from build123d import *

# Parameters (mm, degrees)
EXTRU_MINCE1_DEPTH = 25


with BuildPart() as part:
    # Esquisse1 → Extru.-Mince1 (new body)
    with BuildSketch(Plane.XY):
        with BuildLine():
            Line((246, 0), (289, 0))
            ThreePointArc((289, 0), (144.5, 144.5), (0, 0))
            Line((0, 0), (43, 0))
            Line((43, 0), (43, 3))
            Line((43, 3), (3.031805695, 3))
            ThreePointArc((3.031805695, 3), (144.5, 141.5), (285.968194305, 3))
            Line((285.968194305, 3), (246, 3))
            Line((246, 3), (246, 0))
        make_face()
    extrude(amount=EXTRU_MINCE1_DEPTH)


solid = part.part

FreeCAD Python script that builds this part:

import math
import FreeCAD as App
import Part
import Sketcher
Q = App.Units.Quantity

doc = App.newDocument("Part")
body = doc.addObject("PartDesign::Body", "Body")

sketch1 = doc.addObject("Sketcher::SketchObject", "Sketch")
body.addObject(sketch1)
sketch1.AttachmentSupport = (doc.XY_Plane, [""])
sketch1.MapMode = "FlatFace"
sketch1.addGeometry([
    Part.LineSegment(App.Vector(246, 0, 0), App.Vector(289, 0, 0)),
    Part.ArcOfCircle(Part.Circle(App.Vector(144.5, 0, 0), App.Vector(0, 0, 1), 144.5), math.radians(0), math.radians(180)),
    Part.LineSegment(App.Vector(0, 0, 0), App.Vector(43, 0, 0)),
    Part.LineSegment(App.Vector(43, 0, 0), App.Vector(43, 3, 0)),
    Part.LineSegment(App.Vector(43, 3, 0), App.Vector(3.031806, 3, 0)),
    Part.ArcOfCircle(Part.Circle(App.Vector(144.5, 0, 0), App.Vector(0, 0, 1), 141.5), math.radians(1.214843), math.radians(178.785157)),
    Part.LineSegment(App.Vector(285.968194, 3, 0), App.Vector(246, 3, 0)),
    Part.LineSegment(App.Vector(246, 3, 0), App.Vector(246, 0, 0)),
], False)
sketch1.addConstraint([
    Sketcher.Constraint("Coincident", 0, 2, 1, 1),
    Sketcher.Constraint("Coincident", 1, 2, 2, 1),
    Sketcher.Constraint("Coincident", 2, 2, 3, 1),
    Sketcher.Constraint("Coincident", 3, 2, 4, 1),
    Sketcher.Constraint("Coincident", 4, 2, 5, 2),
    Sketcher.Constraint("Coincident", 5, 1, 6, 1),
    Sketcher.Constraint("Coincident", 6, 2, 7, 1),
    Sketcher.Constraint("Coincident", 7, 2, 0, 1),
    Sketcher.Constraint("Horizontal", 0),
    Sketcher.Constraint("Horizontal", 2),
    Sketcher.Constraint("Vertical", 3),
    Sketcher.Constraint("Horizontal", 4),
    Sketcher.Constraint("Horizontal", 6),
    Sketcher.Constraint("Vertical", 7),
    Sketcher.Constraint("Coincident", 1, 2, -1, 1),
    Sketcher.Constraint("Coincident", 5, 3, 1, 3),
    Sketcher.Constraint("PointOnObject", 1, 3, -1),
    Sketcher.Constraint("PointOnObject", 0, 2, -1),
    Sketcher.Constraint("Horizontal", 4, 2, 5, 1),
    Sketcher.Constraint("Equal", 0, 2),
    Sketcher.Constraint("Radius", 1, Q("144.5 mm")),
    Sketcher.Constraint("Radius", 5, Q("141.5 mm")),
    Sketcher.Constraint("DistanceX", 0, 1, 0, 2, Q("43 mm")),
    Sketcher.Constraint("DistanceY", 3, 1, 3, 2, Q("3 mm")),
])
pad1 = doc.addObject("PartDesign::Pad", "Pad")
body.addObject(pad1)
pad1.Profile = sketch1
pad1.Length = 25

doc.recompute()
